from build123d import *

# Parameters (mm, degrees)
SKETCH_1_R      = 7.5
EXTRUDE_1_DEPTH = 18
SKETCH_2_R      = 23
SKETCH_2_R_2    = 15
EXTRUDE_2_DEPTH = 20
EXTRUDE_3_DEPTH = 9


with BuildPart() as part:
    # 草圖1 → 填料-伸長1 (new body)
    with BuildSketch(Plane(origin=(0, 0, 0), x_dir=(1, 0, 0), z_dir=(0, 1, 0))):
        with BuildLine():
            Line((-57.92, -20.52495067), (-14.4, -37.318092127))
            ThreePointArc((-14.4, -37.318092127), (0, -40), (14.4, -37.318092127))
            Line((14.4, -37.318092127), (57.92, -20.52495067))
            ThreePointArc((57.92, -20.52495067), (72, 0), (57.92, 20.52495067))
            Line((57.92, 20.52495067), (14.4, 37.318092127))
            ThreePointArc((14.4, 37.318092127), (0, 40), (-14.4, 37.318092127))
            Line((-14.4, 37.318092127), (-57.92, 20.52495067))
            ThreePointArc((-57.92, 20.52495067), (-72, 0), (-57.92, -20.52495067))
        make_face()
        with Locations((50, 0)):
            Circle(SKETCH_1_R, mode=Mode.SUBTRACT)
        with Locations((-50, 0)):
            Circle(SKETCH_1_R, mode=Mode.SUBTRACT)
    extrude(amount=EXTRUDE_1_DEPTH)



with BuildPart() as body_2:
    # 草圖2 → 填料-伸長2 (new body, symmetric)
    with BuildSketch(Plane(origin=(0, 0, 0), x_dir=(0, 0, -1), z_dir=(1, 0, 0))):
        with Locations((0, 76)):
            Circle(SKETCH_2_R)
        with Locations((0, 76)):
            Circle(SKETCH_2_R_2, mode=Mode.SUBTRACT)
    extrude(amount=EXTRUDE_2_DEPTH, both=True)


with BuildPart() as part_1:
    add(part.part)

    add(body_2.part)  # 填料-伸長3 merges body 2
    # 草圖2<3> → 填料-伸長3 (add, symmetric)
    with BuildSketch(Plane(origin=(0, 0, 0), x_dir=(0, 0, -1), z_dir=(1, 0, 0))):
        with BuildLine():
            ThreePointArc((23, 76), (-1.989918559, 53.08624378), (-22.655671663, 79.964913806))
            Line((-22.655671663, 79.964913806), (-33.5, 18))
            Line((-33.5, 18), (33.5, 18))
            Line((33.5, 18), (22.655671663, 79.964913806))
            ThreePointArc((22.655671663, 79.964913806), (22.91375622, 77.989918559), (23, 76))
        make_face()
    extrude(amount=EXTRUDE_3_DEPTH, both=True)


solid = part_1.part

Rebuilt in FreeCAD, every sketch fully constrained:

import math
import FreeCAD as App
import Part
import Sketcher

doc = App.newDocument("Part")
body = doc.addObject("PartDesign::Body", "Body")

# Sketch on XZ plane
sketch1 = body.newObject("Sketcher::SketchObject", "Sketch")
sketch1.AttachmentSupport = (doc.getObject("XZ_Plane"), [""])
sketch1.MapMode = "FlatFace"
sketch1.addGeometry(Part.LineSegment(App.Vector(-58, 21, 0), App.Vector(-14, 37, 0)), False)
sketch1.addGeometry(Part.ArcOfCircle(Part.Circle(App.Vector(0, 0, 0), App.Vector(0, 0, 1), 40), math.radians(69), math.radians(111)), False)
sketch1.addGeometry(Part.LineSegment(App.Vector(14, 37, 0), App.Vector(58, 21, 0)), False)
sketch1.addGeometry(Part.ArcOfCircle(Part.Circle(App.Vector(50, 0, 0), App.Vector(0, 0, 1), 22), math.radians(-69), math.radians(69)), False)
sketch1.addGeometry(Part.LineSegment(App.Vector(58, -21, 0), App.Vector(14, -37, 0)), False)
sketch1.addGeometry(Part.ArcOfCircle(Part.Circle(App.Vector(0, 0, 0), App.Vector(0, 0, 1), 40), math.radians(-111), math.radians(-69)), False)
sketch1.addGeometry(Part.LineSegment(App.Vector(-14, -37, 0), App.Vector(-58, -21, 0)), False)
sketch1.addGeometry(Part.ArcOfCircle(Part.Circle(App.Vector(-50, 0, 0), App.Vector(0, 0, 1), 22), math.radians(111), math.radians(249)), False)
sketch1.addGeometry(Part.Circle(App.Vector(-50, 0, 0), App.Vector(0, 0, 1), 8), False)
sketch1.addGeometry(Part.Circle(App.Vector(50, 0, 0), App.Vector(0, 0, 1), 8), False)
sketch1.addConstraint(Sketcher.Constraint("Tangent", 0, 2, 1, 2))
sketch1.addConstraint(Sketcher.Constraint("Tangent", 1, 1, 2, 1))
sketch1.addConstraint(Sketcher.Constraint("Tangent", 2, 2, 3, 2))
sketch1.addConstraint(Sketcher.Constraint("Tangent", 3, 1, 4, 1))
sketch1.addConstraint(Sketcher.Constraint("Tangent", 4, 2, 5, 2))
sketch1.addConstraint(Sketcher.Constraint("Tangent", 5, 1, 6, 1))
sketch1.addConstraint(Sketcher.Constraint("Tangent", 6, 2, 7, 2))
sketch1.addConstraint(Sketcher.Constraint("Tangent", 7, 1, 0, 1))
sketch1.addConstraint(Sketcher.Constraint("Coincident", 1, 3, -1, 1))
sketch1.addConstraint(Sketcher.Constraint("Coincident", 5, 3, -1, 1))
sketch1.addConstraint(Sketcher.Constraint("Coincident", 8, 3, 7, 3))
sketch1.addConstraint(Sketcher.Constraint("Coincident", 9, 3, 3, 3))
sketch1.addConstraint(Sketcher.Constraint("Equal", 1, 5))
sketch1.addConstraint(Sketcher.Constraint("Equal", 3, 7))
sketch1.addConstraint(Sketcher.Constraint("Equal", 8, 9))
sketch1.addConstraint(Sketcher.Constraint("Symmetric", 3, 3, 7, 3, -1, 1))
sketch1.addConstraint(Sketcher.Constraint("PointOnObject", 3, 3, -1))
sketch1.addConstraint(Sketcher.Constraint("Diameter", 8, 15.0))
sketch1.addConstraint(Sketcher.Constraint("Radius", 1, 40.0))
sketch1.addConstraint(Sketcher.Constraint("Radius", 3, 22.0))
sketch1.addConstraint(Sketcher.Constraint("DistanceX", -1, 1, 3, 3, 50.0))
pad1 = body.newObject("PartDesign::Pad", "Pad")
pad1.Profile = sketch1
pad1.Length = 18
pad1.Reversed = True
body2 = doc.addObject("PartDesign::Body", "Body001")

# Sketch on YZ plane
sketch2 = body2.newObject("Sketcher::SketchObject", "Sketch001")
sketch2.AttachmentSupport = (doc.getObject("YZ_Plane001"), [""])
sketch2.MapMode = "FlatFace"
sketch2.addGeometry(Part.Circle(App.Vector(76, 0, 0), App.Vector(0, 0, 1), 23), False)
sketch2.addGeometry(Part.Circle(App.Vector(76, 0, 0), App.Vector(0, 0, 1), 15), False)
sketch2.addConstraint(Sketcher.Constraint("Coincident", 1, 3, 0, 3))
sketch2.addConstraint(Sketcher.Constraint("PointOnObject", 0, 3, -1))
sketch2.addConstraint(Sketcher.Constraint("Diameter", 0, 46.0))
sketch2.addConstraint(Sketcher.Constraint("Diameter", 1, 30.0))
sketch2.addConstraint(Sketcher.Constraint("DistanceX", -1, 1, 0, 3, 76.0))
pad2 = body2.newObject("PartDesign::Pad", "Pad001")
pad2.Profile = sketch2
pad2.Length = 40
pad2.Midplane = True
body.AllowCompound = True
doc.recompute()

boolean = body.newObject("PartDesign::Boolean", "Boolean")
boolean.Type = "Fuse"
boolean.addObjects([body2])

# Sketch on YZ plane
sketch3 = body.newObject("Sketcher::SketchObject", "Sketch002")
sketch3.AttachmentSupport = (doc.getObject("YZ_Plane"), [""])
sketch3.MapMode = "FlatFace"
sketch3.addGeometry(Part.ArcOfCircle(Part.Circle(App.Vector(76, 0, 0), App.Vector(0, 0, 1), 23), math.radians(80), math.radians(270)), False)
sketch3.addGeometry(Part.LineSegment(App.Vector(80, 22.7, 0), App.Vector(18, 33.5, 0)), False)
sketch3.addGeometry(Part.LineSegment(App.Vector(18, 33.5, 0), App.Vector(18, -33.5, 0)), False)
sketch3.addGeometry(Part.LineSegment(App.Vector(18, -33.5, 0), App.Vector(80, -22.7, 0)), False)
sketch3.addGeometry(Part.ArcOfCircle(Part.Circle(App.Vector(76, 0, 0), App.Vector(0, 0, 1), 23), math.radians(-90), math.radians(-80.07)), False)
sketch3.addConstraint(Sketcher.Constraint("Tangent", 0, 1, 1, 1))
sketch3.addConstraint(Sketcher.Constraint("Coincident", 1, 2, 2, 1))
sketch3.addConstraint(Sketcher.Constraint("Coincident", 2, 2, 3, 1))
sketch3.addConstraint(Sketcher.Constraint("Tangent", 3, 2, 4, 2))
sketch3.addConstraint(Sketcher.Constraint("Tangent", 4, 1, 0, 2))
sketch3.addConstraint(Sketcher.Constraint("Vertical", 2))
sketch3.addConstraint(Sketcher.Constraint("Equal", 0, 4))
sketch3.addConstraint(Sketcher.Constraint("Symmetric", 0, 1, 3, 2, -1))
sketch3.addConstraint(Sketcher.Constraint("Vertical", 0, 3, 4, 1))
sketch3.addConstraint(Sketcher.Constraint("Radius", 0, 23.0))
sketch3.addConstraint(Sketcher.Constraint("DistanceY", 2, 2, 2, 1, 67.0))
sketch3.addConstraint(Sketcher.Constraint("DistanceX", -1, 1, 0, 3, 76.0))
sketch3.addConstraint(Sketcher.Constraint("DistanceX", -1, 1, 1, 2, 18.0))
pad3 = body.newObject("PartDesign::Pad", "Pad002")
pad3.Profile = sketch3
pad3.Length = 18
pad3.Midplane = True

doc.recompute()
